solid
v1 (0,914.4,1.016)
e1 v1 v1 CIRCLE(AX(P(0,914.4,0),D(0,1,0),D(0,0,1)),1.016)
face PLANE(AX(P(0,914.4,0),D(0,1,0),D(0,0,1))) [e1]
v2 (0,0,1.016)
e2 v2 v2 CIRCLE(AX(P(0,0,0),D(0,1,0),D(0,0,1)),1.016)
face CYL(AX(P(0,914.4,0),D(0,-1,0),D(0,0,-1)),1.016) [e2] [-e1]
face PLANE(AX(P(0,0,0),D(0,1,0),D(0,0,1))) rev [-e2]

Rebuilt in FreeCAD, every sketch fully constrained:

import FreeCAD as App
import Part
import Sketcher

V = App.Vector
Q = App.Units.Quantity

doc = App.newDocument("Part")
body = doc.addObject("PartDesign::Body", "Body")

# Sketch on XZ plane
sketch1 = doc.addObject("Sketcher::SketchObject", "Sketch")
body.addObject(sketch1)
sketch1.AttachmentSupport = (doc.XZ_Plane, [""])
sketch1.MapMode = "FlatFace"
sketch1.addGeometry(Part.Circle(V(0, 0, 0), V(0, 0, 1), 1), False)
sketch1.addConstraint([
    Sketcher.Constraint("Coincident", 0, 3, -1, 1),
    Sketcher.Constraint("Diameter", 0, Q("0.08 in")),
])
pad1 = doc.addObject("PartDesign::Pad", "Pad")
body.addObject(pad1)
pad1.Profile = sketch1
pad1.Length = Q("36 in")
pad1.Reversed = True

doc.recompute()
